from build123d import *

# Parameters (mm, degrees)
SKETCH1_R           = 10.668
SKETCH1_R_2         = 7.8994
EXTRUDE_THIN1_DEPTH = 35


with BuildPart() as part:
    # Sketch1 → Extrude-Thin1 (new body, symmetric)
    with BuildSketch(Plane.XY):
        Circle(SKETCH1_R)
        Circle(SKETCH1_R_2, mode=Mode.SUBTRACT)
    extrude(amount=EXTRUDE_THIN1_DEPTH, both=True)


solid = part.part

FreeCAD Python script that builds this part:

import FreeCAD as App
import Part
import Sketcher
Q = App.Units.Quantity

doc = App.newDocument("Part")
body = doc.addObject("PartDesign::Body", "Body")

sketch1 = body.newObject("Sketcher::SketchObject", "Sketch")
sketch1.AttachmentSupport = (doc.getObject("XY_Plane"), [""])
sketch1.MapMode = "FlatFace"
sketch1.addGeometry([
    Part.Circle(App.Vector(0, 0, 0), App.Vector(0, 0, 1), 10.668),
    Part.Circle(App.Vector(0, 0, 0), App.Vector(0, 0, 1), 7.8994),
], False)
sketch1.addConstraint([
    Sketcher.Constraint("Coincident", 0, 3, -1, 1),
    Sketcher.Constraint("Coincident", 1, 3, -1, 1),
    Sketcher.Constraint("Diameter", 0, Q("0.84 in")),
    Sketcher.Constraint("Diameter", 1, Q("0.622 in")),
])
pad1 = body.newObject("PartDesign::Pad", "Pad")
pad1.Profile = sketch1
pad1.Length = 70
pad1.Midplane = True

doc.recompute()
